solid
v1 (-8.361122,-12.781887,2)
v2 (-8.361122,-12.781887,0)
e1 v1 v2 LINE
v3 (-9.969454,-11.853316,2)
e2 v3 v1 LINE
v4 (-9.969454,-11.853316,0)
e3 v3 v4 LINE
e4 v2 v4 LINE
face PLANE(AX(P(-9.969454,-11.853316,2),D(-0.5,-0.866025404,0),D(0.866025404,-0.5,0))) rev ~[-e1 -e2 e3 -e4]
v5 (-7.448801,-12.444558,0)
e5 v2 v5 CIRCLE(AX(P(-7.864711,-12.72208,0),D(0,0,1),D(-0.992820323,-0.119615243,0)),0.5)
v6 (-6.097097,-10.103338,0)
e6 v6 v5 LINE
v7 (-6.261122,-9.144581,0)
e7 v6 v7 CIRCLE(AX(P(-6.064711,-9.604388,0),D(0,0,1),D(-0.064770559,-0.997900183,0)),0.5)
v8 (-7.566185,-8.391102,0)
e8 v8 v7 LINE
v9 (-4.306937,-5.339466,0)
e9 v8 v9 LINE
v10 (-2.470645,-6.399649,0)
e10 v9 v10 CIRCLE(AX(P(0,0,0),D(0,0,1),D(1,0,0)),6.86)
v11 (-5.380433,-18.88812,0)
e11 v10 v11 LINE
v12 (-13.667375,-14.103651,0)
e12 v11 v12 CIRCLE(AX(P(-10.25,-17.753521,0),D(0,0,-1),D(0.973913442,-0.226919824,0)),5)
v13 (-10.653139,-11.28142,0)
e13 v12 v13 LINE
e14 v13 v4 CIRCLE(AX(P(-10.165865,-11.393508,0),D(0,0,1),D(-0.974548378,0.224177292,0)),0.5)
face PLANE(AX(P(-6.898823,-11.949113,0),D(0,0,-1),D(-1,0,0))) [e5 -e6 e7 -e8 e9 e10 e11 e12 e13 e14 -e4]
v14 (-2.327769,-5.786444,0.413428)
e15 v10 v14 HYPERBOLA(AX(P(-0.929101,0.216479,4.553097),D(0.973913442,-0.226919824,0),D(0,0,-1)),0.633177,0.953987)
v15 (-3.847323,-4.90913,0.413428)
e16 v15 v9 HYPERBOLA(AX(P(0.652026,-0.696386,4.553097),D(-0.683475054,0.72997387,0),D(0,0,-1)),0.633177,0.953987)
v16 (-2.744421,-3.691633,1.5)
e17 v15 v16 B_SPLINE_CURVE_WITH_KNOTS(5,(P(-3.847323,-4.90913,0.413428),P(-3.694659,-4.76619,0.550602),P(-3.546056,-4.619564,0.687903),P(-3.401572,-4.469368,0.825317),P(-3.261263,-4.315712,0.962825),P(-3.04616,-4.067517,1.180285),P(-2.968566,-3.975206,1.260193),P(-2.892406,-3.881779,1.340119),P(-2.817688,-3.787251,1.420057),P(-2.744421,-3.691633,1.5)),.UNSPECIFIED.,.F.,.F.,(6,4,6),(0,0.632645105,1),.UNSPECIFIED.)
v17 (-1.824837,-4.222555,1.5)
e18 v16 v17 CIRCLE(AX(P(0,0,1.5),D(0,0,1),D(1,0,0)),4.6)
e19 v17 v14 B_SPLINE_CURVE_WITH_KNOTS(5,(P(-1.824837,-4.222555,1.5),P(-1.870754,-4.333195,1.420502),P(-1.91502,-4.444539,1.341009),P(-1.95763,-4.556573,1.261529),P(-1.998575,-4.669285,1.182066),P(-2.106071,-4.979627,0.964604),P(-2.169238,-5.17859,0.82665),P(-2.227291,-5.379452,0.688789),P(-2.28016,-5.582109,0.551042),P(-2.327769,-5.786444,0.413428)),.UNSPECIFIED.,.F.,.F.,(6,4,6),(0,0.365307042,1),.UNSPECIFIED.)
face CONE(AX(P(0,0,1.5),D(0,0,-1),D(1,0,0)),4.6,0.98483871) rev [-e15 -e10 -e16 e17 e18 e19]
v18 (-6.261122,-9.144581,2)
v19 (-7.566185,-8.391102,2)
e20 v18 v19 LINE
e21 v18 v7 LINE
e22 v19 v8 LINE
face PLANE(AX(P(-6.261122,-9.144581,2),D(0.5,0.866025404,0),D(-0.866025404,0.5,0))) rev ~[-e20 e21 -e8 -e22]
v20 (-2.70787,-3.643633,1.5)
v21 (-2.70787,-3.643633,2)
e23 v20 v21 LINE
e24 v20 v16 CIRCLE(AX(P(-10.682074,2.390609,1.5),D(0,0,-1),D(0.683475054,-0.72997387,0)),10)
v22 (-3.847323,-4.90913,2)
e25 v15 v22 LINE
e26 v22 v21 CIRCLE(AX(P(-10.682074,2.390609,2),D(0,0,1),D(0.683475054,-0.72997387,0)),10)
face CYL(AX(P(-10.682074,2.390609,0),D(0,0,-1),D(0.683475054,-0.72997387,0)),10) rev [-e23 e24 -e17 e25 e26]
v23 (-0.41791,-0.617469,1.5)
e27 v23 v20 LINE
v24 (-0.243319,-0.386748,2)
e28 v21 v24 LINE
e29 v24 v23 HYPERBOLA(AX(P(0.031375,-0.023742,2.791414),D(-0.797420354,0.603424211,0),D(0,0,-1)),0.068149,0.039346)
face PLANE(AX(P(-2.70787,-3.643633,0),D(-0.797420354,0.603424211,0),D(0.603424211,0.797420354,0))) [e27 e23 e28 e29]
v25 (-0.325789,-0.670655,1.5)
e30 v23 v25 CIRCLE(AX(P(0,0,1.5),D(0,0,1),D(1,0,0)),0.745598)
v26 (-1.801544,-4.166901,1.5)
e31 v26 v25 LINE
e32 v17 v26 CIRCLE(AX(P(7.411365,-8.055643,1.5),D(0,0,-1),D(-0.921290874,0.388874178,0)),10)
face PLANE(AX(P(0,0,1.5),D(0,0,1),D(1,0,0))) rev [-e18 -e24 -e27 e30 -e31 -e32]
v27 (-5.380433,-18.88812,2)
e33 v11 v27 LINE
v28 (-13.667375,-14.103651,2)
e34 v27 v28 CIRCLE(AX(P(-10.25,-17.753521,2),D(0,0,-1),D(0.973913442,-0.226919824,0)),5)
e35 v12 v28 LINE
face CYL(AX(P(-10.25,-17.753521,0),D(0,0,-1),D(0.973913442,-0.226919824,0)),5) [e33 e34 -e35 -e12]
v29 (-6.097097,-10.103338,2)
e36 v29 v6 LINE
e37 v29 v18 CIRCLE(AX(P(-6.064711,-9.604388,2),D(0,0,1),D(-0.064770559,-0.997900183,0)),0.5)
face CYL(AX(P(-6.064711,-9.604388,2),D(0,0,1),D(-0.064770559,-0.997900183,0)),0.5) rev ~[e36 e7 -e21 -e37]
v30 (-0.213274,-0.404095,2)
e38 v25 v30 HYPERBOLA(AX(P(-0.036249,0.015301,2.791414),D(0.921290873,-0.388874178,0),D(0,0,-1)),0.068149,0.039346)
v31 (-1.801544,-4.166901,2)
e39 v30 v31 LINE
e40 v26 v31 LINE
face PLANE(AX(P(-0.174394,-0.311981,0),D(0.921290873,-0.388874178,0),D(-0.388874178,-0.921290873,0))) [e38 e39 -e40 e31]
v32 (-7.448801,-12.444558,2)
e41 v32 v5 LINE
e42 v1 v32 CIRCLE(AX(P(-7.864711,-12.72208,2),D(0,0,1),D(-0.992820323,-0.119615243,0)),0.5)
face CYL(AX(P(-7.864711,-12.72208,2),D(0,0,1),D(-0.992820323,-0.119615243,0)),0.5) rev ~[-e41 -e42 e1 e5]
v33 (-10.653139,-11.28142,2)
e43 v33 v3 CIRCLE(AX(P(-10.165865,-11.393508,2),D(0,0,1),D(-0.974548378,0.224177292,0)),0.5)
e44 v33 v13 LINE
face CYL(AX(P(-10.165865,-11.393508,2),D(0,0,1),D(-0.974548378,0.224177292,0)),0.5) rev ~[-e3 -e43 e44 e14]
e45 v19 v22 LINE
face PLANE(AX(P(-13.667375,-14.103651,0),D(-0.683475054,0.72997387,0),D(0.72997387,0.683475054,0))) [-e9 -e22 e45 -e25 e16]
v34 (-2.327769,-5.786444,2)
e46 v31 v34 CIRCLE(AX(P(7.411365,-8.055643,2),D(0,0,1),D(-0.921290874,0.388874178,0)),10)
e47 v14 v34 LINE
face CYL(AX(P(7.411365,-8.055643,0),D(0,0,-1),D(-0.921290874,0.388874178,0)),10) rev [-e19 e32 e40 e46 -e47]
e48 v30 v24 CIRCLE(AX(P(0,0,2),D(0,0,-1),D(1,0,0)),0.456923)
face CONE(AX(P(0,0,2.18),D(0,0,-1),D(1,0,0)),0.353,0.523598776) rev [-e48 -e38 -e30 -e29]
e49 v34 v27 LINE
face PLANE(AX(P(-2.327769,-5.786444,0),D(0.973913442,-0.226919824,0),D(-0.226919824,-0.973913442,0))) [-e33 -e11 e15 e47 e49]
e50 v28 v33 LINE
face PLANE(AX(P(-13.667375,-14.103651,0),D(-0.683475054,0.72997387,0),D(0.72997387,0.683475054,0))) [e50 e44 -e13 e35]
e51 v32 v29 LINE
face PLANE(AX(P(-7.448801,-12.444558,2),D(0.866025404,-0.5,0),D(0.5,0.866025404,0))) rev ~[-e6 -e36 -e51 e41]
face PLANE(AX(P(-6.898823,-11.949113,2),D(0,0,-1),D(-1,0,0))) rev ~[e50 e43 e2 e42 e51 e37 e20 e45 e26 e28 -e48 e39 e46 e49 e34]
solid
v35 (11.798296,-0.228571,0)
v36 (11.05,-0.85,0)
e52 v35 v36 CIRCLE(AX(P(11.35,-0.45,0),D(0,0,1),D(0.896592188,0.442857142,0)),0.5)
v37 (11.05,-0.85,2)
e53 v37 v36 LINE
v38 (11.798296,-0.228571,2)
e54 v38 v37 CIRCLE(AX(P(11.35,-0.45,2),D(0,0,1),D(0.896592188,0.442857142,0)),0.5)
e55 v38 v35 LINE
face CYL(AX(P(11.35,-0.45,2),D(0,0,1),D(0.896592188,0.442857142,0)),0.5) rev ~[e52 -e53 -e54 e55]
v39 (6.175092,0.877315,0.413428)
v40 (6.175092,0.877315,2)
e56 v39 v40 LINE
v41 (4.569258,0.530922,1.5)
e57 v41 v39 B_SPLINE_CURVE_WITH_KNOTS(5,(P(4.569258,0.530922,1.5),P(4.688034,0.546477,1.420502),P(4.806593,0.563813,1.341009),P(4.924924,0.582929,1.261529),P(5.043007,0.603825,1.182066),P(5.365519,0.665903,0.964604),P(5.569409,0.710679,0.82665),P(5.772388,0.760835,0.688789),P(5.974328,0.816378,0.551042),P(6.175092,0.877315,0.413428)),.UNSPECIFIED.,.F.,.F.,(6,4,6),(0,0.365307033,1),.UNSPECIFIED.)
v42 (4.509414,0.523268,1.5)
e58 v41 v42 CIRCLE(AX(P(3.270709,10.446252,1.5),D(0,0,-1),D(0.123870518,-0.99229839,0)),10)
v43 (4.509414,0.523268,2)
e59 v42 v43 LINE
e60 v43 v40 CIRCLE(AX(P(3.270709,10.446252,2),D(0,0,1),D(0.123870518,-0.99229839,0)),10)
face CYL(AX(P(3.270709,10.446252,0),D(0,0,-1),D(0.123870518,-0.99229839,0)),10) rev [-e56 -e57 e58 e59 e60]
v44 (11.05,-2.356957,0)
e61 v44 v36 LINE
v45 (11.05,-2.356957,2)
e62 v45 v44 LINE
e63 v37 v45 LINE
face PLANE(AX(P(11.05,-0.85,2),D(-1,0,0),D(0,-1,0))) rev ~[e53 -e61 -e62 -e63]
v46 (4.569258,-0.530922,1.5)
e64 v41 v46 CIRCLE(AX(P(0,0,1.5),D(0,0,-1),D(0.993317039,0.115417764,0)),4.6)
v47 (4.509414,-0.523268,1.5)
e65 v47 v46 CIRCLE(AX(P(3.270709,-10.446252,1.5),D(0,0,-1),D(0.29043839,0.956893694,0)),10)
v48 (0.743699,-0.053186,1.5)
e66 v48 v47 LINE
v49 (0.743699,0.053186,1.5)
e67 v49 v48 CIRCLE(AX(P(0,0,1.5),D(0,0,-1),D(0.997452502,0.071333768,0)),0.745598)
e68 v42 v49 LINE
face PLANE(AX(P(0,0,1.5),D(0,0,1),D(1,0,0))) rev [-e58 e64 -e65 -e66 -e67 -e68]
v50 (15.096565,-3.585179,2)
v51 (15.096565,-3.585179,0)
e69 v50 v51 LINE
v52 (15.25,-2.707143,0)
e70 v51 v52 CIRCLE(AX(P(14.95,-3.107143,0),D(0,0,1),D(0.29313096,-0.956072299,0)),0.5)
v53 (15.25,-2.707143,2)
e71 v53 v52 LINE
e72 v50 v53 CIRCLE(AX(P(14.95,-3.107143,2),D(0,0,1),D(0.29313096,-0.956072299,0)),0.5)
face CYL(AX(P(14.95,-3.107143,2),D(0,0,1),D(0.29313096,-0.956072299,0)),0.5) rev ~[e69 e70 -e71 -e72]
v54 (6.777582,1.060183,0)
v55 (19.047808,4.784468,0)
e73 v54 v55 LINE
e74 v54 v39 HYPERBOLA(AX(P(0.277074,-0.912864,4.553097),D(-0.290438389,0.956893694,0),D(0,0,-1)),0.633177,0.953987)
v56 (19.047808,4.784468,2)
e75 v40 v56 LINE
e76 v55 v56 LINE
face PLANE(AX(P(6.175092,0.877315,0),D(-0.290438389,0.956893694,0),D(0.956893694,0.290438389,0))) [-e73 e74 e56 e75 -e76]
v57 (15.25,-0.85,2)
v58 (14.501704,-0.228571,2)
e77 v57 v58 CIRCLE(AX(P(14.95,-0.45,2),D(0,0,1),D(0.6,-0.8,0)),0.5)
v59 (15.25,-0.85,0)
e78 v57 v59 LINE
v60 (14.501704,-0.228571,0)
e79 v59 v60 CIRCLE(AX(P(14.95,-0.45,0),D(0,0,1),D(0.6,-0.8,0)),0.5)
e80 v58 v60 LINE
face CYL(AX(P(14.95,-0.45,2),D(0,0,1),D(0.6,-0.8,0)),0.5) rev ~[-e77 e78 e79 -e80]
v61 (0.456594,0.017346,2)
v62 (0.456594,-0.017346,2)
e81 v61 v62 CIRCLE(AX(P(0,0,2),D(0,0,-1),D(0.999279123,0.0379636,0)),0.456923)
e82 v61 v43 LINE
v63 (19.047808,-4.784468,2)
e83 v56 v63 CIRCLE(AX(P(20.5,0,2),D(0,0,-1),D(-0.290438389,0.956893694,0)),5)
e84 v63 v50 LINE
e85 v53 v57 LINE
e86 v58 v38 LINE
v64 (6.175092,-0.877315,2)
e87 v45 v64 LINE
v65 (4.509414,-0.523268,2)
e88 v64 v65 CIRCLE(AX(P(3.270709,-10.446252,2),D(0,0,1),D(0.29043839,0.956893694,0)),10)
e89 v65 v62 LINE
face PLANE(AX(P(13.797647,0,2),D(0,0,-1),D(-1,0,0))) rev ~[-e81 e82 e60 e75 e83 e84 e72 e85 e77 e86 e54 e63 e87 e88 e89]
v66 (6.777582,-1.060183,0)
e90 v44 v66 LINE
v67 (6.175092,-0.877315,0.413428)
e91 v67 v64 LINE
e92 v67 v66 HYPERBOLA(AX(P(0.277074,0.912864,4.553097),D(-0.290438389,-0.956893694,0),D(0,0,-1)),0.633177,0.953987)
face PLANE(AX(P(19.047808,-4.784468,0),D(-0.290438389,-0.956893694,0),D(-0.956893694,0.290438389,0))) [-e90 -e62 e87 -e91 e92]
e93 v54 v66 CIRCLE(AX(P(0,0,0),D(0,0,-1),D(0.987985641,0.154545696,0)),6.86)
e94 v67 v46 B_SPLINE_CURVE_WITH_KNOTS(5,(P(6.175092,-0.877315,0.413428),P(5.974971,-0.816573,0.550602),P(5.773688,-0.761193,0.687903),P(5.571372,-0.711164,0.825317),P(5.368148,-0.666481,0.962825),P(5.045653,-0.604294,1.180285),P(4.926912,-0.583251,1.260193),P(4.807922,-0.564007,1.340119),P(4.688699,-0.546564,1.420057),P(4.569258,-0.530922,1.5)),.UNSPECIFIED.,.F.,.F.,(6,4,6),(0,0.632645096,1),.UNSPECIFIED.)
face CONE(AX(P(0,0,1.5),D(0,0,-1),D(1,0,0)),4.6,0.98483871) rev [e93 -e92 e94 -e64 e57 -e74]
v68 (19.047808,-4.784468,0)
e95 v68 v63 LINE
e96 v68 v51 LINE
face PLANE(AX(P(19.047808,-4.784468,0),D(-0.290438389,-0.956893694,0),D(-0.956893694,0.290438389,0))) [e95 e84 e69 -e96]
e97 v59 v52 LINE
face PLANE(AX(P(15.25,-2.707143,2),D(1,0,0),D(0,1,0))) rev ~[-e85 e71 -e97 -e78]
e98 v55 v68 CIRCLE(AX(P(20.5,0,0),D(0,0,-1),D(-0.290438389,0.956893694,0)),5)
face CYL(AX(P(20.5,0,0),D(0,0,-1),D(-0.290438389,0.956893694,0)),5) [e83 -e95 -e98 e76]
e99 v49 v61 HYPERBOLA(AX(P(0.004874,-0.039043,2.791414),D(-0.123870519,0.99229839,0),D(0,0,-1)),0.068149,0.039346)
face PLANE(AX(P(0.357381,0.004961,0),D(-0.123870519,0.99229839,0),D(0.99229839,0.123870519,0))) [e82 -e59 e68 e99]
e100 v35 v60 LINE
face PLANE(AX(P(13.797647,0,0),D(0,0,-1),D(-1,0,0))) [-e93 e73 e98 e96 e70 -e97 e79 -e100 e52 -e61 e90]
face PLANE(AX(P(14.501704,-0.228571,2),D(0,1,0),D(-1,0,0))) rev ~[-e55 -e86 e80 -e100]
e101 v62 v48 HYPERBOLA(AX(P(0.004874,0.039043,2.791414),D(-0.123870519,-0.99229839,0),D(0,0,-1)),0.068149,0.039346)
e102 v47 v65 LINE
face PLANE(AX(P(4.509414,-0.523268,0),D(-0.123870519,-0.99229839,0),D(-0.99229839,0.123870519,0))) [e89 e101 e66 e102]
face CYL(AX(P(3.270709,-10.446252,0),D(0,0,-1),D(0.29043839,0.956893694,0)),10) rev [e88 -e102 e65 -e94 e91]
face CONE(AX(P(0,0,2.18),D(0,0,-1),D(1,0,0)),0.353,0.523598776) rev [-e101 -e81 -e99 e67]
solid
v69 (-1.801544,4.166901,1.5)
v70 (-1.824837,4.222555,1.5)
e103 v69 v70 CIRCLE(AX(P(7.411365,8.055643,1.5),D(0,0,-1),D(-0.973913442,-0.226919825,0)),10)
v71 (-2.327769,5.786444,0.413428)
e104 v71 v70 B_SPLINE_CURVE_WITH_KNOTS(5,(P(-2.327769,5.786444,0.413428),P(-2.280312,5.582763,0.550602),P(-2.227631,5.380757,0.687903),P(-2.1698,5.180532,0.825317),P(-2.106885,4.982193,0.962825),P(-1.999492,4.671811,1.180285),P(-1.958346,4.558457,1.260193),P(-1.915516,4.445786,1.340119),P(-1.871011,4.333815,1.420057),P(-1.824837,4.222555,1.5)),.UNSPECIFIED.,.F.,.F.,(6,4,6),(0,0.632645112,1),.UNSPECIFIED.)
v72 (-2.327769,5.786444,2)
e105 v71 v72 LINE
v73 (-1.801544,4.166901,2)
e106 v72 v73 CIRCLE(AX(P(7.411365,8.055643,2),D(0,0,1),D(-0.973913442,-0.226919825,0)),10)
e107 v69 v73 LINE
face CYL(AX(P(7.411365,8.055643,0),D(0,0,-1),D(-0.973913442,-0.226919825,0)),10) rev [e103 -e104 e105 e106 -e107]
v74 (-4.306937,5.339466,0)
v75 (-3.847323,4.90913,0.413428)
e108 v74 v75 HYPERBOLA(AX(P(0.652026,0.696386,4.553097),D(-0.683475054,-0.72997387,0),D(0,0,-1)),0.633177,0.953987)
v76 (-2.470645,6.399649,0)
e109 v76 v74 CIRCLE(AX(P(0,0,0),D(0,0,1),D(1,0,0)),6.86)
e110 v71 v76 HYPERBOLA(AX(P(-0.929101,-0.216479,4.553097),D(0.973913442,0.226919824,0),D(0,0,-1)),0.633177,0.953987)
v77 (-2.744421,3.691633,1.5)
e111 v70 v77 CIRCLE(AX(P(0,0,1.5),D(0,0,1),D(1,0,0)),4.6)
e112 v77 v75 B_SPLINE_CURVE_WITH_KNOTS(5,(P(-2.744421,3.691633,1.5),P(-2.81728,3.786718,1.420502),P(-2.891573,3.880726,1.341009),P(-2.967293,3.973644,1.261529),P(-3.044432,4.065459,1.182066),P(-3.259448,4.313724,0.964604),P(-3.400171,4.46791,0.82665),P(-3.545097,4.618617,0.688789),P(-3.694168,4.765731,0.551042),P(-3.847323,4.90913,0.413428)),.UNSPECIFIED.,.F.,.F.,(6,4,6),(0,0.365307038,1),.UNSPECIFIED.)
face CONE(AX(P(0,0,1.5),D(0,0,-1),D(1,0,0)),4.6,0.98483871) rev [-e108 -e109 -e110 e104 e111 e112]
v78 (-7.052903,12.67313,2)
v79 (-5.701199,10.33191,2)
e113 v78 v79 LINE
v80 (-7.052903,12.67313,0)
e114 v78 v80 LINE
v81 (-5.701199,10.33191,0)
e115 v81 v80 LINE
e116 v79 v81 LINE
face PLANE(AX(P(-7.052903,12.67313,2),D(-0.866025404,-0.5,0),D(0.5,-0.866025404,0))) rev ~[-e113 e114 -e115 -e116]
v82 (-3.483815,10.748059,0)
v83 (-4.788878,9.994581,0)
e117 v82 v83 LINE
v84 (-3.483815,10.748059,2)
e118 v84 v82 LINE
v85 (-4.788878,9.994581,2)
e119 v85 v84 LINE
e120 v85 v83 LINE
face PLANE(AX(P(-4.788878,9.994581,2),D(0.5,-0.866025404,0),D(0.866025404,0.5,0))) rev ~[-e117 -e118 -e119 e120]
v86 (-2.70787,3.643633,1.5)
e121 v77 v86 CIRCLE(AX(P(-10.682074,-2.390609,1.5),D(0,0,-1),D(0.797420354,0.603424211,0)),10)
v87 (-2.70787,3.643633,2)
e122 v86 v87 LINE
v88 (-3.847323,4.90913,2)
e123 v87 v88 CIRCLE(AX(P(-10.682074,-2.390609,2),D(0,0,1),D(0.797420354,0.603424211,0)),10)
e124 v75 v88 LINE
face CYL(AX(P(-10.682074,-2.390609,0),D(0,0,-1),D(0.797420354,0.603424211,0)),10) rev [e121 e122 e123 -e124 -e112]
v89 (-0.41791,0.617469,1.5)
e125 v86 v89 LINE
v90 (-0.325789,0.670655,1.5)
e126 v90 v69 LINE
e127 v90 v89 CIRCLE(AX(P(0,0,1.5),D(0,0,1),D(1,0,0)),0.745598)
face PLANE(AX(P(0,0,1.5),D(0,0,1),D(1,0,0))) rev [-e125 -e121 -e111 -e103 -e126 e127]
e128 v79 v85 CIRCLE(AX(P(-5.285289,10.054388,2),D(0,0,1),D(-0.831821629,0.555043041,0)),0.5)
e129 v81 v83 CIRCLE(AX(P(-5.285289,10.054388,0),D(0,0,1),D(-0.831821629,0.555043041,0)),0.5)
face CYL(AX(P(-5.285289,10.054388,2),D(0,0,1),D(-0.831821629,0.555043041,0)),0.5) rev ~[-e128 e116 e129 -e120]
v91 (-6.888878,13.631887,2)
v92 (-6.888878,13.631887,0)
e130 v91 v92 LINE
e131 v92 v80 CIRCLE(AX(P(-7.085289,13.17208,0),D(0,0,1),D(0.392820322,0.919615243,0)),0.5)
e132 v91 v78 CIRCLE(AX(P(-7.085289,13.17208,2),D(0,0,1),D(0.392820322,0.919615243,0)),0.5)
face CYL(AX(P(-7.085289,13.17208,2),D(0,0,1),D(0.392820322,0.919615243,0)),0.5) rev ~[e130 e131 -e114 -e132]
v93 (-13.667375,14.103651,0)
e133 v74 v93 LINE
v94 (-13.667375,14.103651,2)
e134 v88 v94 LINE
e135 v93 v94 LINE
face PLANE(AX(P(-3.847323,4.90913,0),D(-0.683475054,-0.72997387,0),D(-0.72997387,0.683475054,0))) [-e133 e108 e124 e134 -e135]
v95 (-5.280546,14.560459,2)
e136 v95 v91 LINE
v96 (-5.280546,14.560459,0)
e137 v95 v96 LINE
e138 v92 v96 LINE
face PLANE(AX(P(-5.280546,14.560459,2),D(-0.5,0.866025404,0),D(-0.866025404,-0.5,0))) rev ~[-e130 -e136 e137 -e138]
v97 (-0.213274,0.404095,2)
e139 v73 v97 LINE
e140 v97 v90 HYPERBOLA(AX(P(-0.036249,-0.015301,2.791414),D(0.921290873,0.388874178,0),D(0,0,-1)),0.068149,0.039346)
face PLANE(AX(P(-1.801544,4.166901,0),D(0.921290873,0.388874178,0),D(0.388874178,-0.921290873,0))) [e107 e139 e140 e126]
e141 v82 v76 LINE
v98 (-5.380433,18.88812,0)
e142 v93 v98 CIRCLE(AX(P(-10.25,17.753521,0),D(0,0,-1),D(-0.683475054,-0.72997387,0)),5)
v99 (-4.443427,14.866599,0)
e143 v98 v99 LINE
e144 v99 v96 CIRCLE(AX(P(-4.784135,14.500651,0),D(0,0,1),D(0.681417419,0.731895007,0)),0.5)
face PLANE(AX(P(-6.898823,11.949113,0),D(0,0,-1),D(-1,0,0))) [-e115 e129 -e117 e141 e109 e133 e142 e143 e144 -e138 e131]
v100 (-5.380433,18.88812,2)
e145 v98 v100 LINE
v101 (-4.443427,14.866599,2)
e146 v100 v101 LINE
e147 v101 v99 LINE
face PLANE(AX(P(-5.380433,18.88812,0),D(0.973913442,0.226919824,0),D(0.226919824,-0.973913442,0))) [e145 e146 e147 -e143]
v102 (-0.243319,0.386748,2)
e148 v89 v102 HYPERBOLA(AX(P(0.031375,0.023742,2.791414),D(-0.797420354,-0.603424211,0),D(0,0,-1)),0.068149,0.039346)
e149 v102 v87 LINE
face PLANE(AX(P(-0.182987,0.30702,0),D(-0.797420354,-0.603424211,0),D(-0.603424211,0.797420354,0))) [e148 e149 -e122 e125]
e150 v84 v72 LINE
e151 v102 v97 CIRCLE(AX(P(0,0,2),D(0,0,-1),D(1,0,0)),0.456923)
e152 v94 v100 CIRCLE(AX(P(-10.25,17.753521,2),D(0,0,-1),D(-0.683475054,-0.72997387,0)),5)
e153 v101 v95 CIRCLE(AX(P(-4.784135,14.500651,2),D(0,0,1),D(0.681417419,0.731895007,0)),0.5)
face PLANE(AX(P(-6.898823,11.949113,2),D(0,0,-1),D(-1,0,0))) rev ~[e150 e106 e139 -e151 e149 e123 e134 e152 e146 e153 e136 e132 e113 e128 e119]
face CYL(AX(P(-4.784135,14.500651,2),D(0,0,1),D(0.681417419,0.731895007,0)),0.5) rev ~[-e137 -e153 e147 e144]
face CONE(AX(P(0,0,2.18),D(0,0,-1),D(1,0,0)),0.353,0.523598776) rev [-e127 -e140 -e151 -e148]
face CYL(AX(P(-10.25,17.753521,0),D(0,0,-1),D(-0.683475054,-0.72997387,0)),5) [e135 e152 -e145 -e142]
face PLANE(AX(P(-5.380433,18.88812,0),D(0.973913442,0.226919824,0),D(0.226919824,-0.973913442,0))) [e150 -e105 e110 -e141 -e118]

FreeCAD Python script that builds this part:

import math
import FreeCAD as App
import Part
import Sketcher

V = App.Vector
Q = App.Units.Quantity

doc = App.newDocument("Part")
body = doc.addObject("PartDesign::Body", "Body")

sketch1 = body.newObject("Sketcher::SketchObject", "Sketch")
sketch1.AttachmentSupport = (doc.getObject("XY_Plane"), [""])
sketch1.MapMode = "FlatFace"
sketch1.addGeometry(Part.LineSegment(V(4.509414, 0.523268, 0), V(0.357381, 0.004961, 0)), False)
sketch1.addGeometry(Part.ArcOfCircle(Part.Circle(V(0.358, 0, 0), V(0, 0, 1), 0.005), math.radians(97.115539), math.radians(262.884461)), False)
sketch1.addGeometry(Part.LineSegment(V(0.357381, -0.004961, 0), V(4.509414, -0.523268, 0)), False)
sketch1.addGeometry(Part.ArcOfCircle(Part.Circle(V(3.270709, -10.446252, 0), V(0, 0, 1), 10), math.radians(73.115796), math.radians(82.884466)), False)
sketch1.addGeometry(Part.LineSegment(V(6.175092, -0.877315, 0), V(19.047808, -4.784468, 0)), False)
sketch1.addGeometry(Part.ArcOfCircle(Part.Circle(V(20.5, 0, 0), V(0, 0, 1), 5), math.radians(-106.884204), math.radians(106.884204)), False)
sketch1.addGeometry(Part.LineSegment(V(19.047808, 4.784468, 0), V(6.175092, 0.877315, 0)), False)
sketch1.addGeometry(Part.ArcOfCircle(Part.Circle(V(3.270709, 10.446252, 0), V(0, 0, 1), 10), math.radians(-82.884466), math.radians(-73.115796)), False)
sketch1.addConstraint(Sketcher.Constraint("Tangent", 0, 2, 1, 1))
sketch1.addConstraint(Sketcher.Constraint("Tangent", 1, 2, 2, 1))
sketch1.addConstraint(Sketcher.Constraint("Tangent", 2, 2, 3, 2))
sketch1.addConstraint(Sketcher.Constraint("Tangent", 3, 1, 4, 1))
sketch1.addConstraint(Sketcher.Constraint("Tangent", 4, 2, 5, 1))
sketch1.addConstraint(Sketcher.Constraint("Tangent", 5, 2, 6, 1))
sketch1.addConstraint(Sketcher.Constraint("Tangent", 6, 2, 7, 2))
sketch1.addConstraint(Sketcher.Constraint("Tangent", 7, 1, 0, 1))
sketch1.addConstraint(Sketcher.Constraint("Equal", 3, 7))
sketch1.addConstraint(Sketcher.Constraint("Symmetric", 3, 3, 7, 3, -1))
sketch1.addConstraint(Sketcher.Constraint("PointOnObject", 1, 3, -1))
sketch1.addConstraint(Sketcher.Constraint("PointOnObject", 5, 3, -1))
sketch1.addConstraint(Sketcher.Constraint("Radius", 3, Q("10 mm")))
sketch1.addConstraint(Sketcher.Constraint("Radius", 5, Q("5 mm")))
sketch1.addConstraint(Sketcher.Constraint("Radius", 1, Q("0.005 mm")))
sketch1.addConstraint(Sketcher.Constraint("DistanceX", -1, 1, 5, 3, Q("20.5 mm")))
sketch1.addConstraint(Sketcher.Constraint("DistanceX", -1, 1, 1, 3, Q("0.358 mm")))
sketch1.addConstraint(Sketcher.Constraint("DistanceY", 4, 2, 2, 2, Q("4.261201 mm")))
sketch1.addConstraint(Sketcher.Constraint("DistanceX", 3, 3, 4, 2, Q("15.777099 mm")))
pad1 = body.newObject("PartDesign::Pad", "Pad")
pad1.Profile = sketch1
pad1.Length = 2
body2 = doc.addObject("PartDesign::Body", "Body001")

sketch2 = body2.newObject("Sketcher::SketchObject", "Sketch001")
sketch2.AttachmentSupport = (doc.getObject("XY_Plane001"), [""])
sketch2.MapMode = "FlatFace"
sketch2.addGeometry(Part.LineSegment(V(-5.380433, -18.88812, 0), V(-2.327769, -5.786444, 0)), False)
sketch2.addGeometry(Part.ArcOfCircle(Part.Circle(V(7.411365, -8.055643, 0), V(0, 0, 1), 10), math.radians(157.115534), math.radians(166.884204)), False)
sketch2.addGeometry(Part.LineSegment(V(-1.801544, -4.166901, 0), V(-0.174394, -0.311981, 0)), False)
sketch2.addGeometry(Part.ArcOfCircle(Part.Circle(V(-0.179, -0.310037, 0), V(0, 0, 1), 0.005), math.radians(-22.884453), math.radians(142.884452)), False)
sketch2.addGeometry(Part.LineSegment(V(-0.182987, -0.30702, 0), V(-2.70787, -3.643633, 0)), False)
sketch2.addGeometry(Part.ArcOfCircle(Part.Circle(V(-10.682074, 2.390609, 0), V(0, 0, 1), 10), math.radians(-46.884204), math.radians(-37.115534)), False)
sketch2.addGeometry(Part.LineSegment(V(-3.847323, -4.90913, 0), V(-13.667375, -14.103651, 0)), False)
sketch2.addGeometry(Part.ArcOfCircle(Part.Circle(V(-10.25, -17.753521, 0), V(0, 0, 1), 5), math.radians(133.115796), math.radians(346.884204)), False)
sketch2.addConstraint(Sketcher.Constraint("Tangent", 0, 2, 1, 2))
sketch2.addConstraint(Sketcher.Constraint("Tangent", 1, 1, 2, 1))
sketch2.addConstraint(Sketcher.Constraint("Tangent", 2, 2, 3, 1))
sketch2.addConstraint(Sketcher.Constraint("Tangent", 3, 2, 4, 1))
sketch2.addConstraint(Sketcher.Constraint("Tangent", 4, 2, 5, 2))
sketch2.addConstraint(Sketcher.Constraint("Tangent", 5, 1, 6, 1))
sketch2.addConstraint(Sketcher.Constraint("Tangent", 6, 2, 7, 1))
sketch2.addConstraint(Sketcher.Constraint("Tangent", 7, 2, 0, 1))
sketch2.addConstraint(Sketcher.Constraint("Equal", 1, 5))
sketch2.addConstraint(Sketcher.Constraint("Equal", 2, 4))
sketch2.addConstraint(Sketcher.Constraint("Equal", 0, 6))
sketch2.addConstraint(Sketcher.Constraint("Radius", 1, Q("10 mm")))
sketch2.addConstraint(Sketcher.Constraint("Radius", 7, Q("5 mm")))
sketch2.addConstraint(Sketcher.Constraint("Radius", 3, Q("0.005 mm")))
sketch2.addConstraint(Sketcher.Constraint("DistanceX", 7, 3, -1, 1, Q("10.25 mm")))
sketch2.addConstraint(Sketcher.Constraint("DistanceX", 3, 3, -1, 1, Q("0.179 mm")))
sketch2.addConstraint(Sketcher.Constraint("DistanceY", 1, 1, -1, 1, Q("4.166901 mm")))
sketch2.addConstraint(Sketcher.Constraint("DistanceY", 1, 3, 0, 2, Q("2.269198 mm")))
sketch2.addConstraint(Sketcher.Constraint("DistanceX", 4, 2, 0, 2, Q("0.380101 mm")))
sketch2.addConstraint(Sketcher.Constraint("Distance", 2, Q("4.184259 mm")))
pad2 = body2.newObject("PartDesign::Pad", "Pad001")
pad2.Profile = sketch2
pad2.Length = 2
body3 = doc.addObject("PartDesign::Body", "Body002")

sketch3 = body3.newObject("Sketcher::SketchObject", "Sketch002")
sketch3.AttachmentSupport = (doc.getObject("XY_Plane002"), [""])
sketch3.MapMode = "FlatFace"
sketch3.addGeometry(Part.LineSegment(V(-13.667375, 14.103651, 0), V(-3.847323, 4.90913, 0)), False)
sketch3.addGeometry(Part.ArcOfCircle(Part.Circle(V(-10.682074, -2.390609, 0), V(0, 0, 1), 10), math.radians(37.115534), math.radians(46.884204)), False)
sketch3.addGeometry(Part.LineSegment(V(-2.70787, 3.643633, 0), V(-0.182987, 0.30702, 0)), False)
sketch3.addGeometry(Part.ArcOfCircle(Part.Circle(V(-0.179, 0.310037, 0), V(0, 0, 1), 0.005), math.radians(-142.884452), math.radians(22.884453)), False)
sketch3.addGeometry(Part.LineSegment(V(-0.174394, 0.311981, 0), V(-1.801544, 4.166901, 0)), False)
sketch3.addGeometry(Part.ArcOfCircle(Part.Circle(V(7.411365, 8.055643, 0), V(0, 0, 1), 10), math.radians(-166.884204), math.radians(-157.115534)), False)
sketch3.addGeometry(Part.LineSegment(V(-2.327769, 5.786444, 0), V(-5.380433, 18.88812, 0)), False)
sketch3.addGeometry(Part.ArcOfCircle(Part.Circle(V(-10.25, 17.753521, 0), V(0, 0, 1), 5), math.radians(13.115796), math.radians(226.884204)), False)
sketch3.addConstraint(Sketcher.Constraint("Tangent", 0, 2, 1, 2))
sketch3.addConstraint(Sketcher.Constraint("Tangent", 1, 1, 2, 1))
sketch3.addConstraint(Sketcher.Constraint("Tangent", 2, 2, 3, 1))
sketch3.addConstraint(Sketcher.Constraint("Tangent", 3, 2, 4, 1))
sketch3.addConstraint(Sketcher.Constraint("Tangent", 4, 2, 5, 2))
sketch3.addConstraint(Sketcher.Constraint("Tangent", 5, 1, 6, 1))
sketch3.addConstraint(Sketcher.Constraint("Tangent", 6, 2, 7, 1))
sketch3.addConstraint(Sketcher.Constraint("Tangent", 7, 2, 0, 1))
sketch3.addConstraint(Sketcher.Constraint("Equal", 1, 5))
sketch3.addConstraint(Sketcher.Constraint("Equal", 2, 4))
sketch3.addConstraint(Sketcher.Constraint("Equal", 0, 6))
sketch3.addConstraint(Sketcher.Constraint("Radius", 1, Q("10 mm")))
sketch3.addConstraint(Sketcher.Constraint("Radius", 7, Q("5 mm")))
sketch3.addConstraint(Sketcher.Constraint("Radius", 3, Q("0.005 mm")))
sketch3.addConstraint(Sketcher.Constraint("DistanceX", 7, 3, -1, 1, Q("10.25 mm")))
sketch3.addConstraint(Sketcher.Constraint("DistanceX", 3, 3, -1, 1, Q("0.179 mm")))
sketch3.addConstraint(Sketcher.Constraint("DistanceY", -1, 1, 4, 2, Q("4.166901 mm")))
sketch3.addConstraint(Sketcher.Constraint("DistanceX", 1, 1, 5, 1, Q("0.380101 mm")))
sketch3.addConstraint(Sketcher.Constraint("DistanceY", 7, 3, 6, 2, Q("1.134599 mm")))
sketch3.addConstraint(Sketcher.Constraint("Distance", 2, Q("4.184259 mm")))
pad3 = body3.newObject("PartDesign::Pad", "Pad002")
pad3.Profile = sketch3
pad3.Length = 2
body4 = doc.addObject("PartDesign::Body", "Body003")
body4.AllowCompound = True

sketch4 = body4.newObject("Sketcher::SketchObject", "Sketch003")
sketch4.AttachmentSupport = (doc.getObject("XY_Plane003"), [""])
sketch4.MapMode = "FlatFace"
sketch4.AttachmentOffset = App.Placement(V(0, 0, 2), App.Rotation())
sketch4.addGeometry(Part.ArcOfCircle(Part.Circle(V(11.35, -0.45, 0), V(0, 0, 1), 0.5), math.radians(26.286321), math.radians(233.130102)), False)
sketch4.addGeometry(Part.LineSegment(V(11.05, -0.85, 0), V(11.05, -2.356957, 0)), False)
sketch4.addGeometry(Part.LineSegment(V(11.05, -2.356957, 0), V(15.096565, -3.585179, 0)), False)
sketch4.addGeometry(Part.ArcOfCircle(Part.Circle(V(14.95, -3.107143, 0), V(0, 0, 1), 0.5), math.radians(-72.954505), math.radians(53.130102)), False)
sketch4.addGeometry(Part.LineSegment(V(15.25, -2.707143, 0), V(15.25, -0.85, 0)), False)
sketch4.addGeometry(Part.ArcOfCircle(Part.Circle(V(14.95, -0.45, 0), V(0, 0, 1), 0.5), math.radians(-53.130102), math.radians(153.713679)), False)
sketch4.addGeometry(Part.LineSegment(V(14.501704, -0.228571, 0), V(11.798296, -0.228571, 0)), False)
sketch4.addGeometry(Part.ArcOfCircle(Part.Circle(V(-7.085289, 13.17208, 0), V(0, 0, 1), 0.5), math.radians(66.869898), math.radians(273.713679)), False)
sketch4.addGeometry(Part.LineSegment(V(-7.052903, 12.67313, 0), V(-5.701199, 10.33191, 0)), False)
sketch4.addGeometry(Part.ArcOfCircle(Part.Circle(V(-5.285289, 10.054388, 0), V(0, 0, 1), 0.5), math.radians(146.286321), math.radians(353.130102)), False)
sketch4.addGeometry(Part.LineSegment(V(-4.788878, 9.994581, 0), V(-3.483815, 10.748059, 0)), False)
sketch4.addGeometry(Part.LineSegment(V(-3.483815, 10.748059, 0), V(-4.443427, 14.866599, 0)), False)
sketch4.addGeometry(Part.ArcOfCircle(Part.Circle(V(-4.784135, 14.500651, 0), V(0, 0, 1), 0.5), math.radians(47.045495), math.radians(173.130102)), False)
sketch4.addGeometry(Part.LineSegment(V(-5.280546, 14.560459, 0), V(-6.888878, 13.631887, 0)), False)
sketch4.addGeometry(Part.ArcOfCircle(Part.Circle(V(-6.064711, -9.604388, 0), V(0, 0, 1), 0.5), math.radians(-93.713679), math.radians(113.130102)), False)
sketch4.addGeometry(Part.LineSegment(V(-6.261122, -9.144581, 0), V(-7.566185, -8.391102, 0)), False)
sketch4.addGeometry(Part.LineSegment(V(-7.566185, -8.391102, 0), V(-10.653139, -11.28142, 0)), False)
sketch4.addGeometry(Part.ArcOfCircle(Part.Circle(V(-10.165865, -11.393508, 0), V(0, 0, 1), 0.5), math.radians(167.045495), math.radians(293.130102)), False)
sketch4.addGeometry(Part.LineSegment(V(-9.969454, -11.853316, 0), V(-8.361122, -12.781887, 0)), False)
sketch4.addGeometry(Part.ArcOfCircle(Part.Circle(V(-7.864711, -12.72208, 0), V(0, 0, 1), 0.5), math.radians(-173.130102), math.radians(33.713679)), False)
sketch4.addGeometry(Part.LineSegment(V(-7.448801, -12.444558, 0), V(-6.097097, -10.103338, 0)), False)
sketch4.addConstraint(Sketcher.Constraint("Coincident", 0, 2, 1, 1))
sketch4.addConstraint(Sketcher.Constraint("Coincident", 1, 2, 2, 1))
sketch4.addConstraint(Sketcher.Constraint("Coincident", 2, 2, 3, 1))
sketch4.addConstraint(Sketcher.Constraint("Coincident", 3, 2, 4, 1))
sketch4.addConstraint(Sketcher.Constraint("Coincident", 4, 2, 5, 1))
sketch4.addConstraint(Sketcher.Constraint("Coincident", 5, 2, 6, 1))
sketch4.addConstraint(Sketcher.Constraint("Coincident", 6, 2, 0, 1))
sketch4.addConstraint(Sketcher.Constraint("Coincident", 7, 2, 8, 1))
sketch4.addConstraint(Sketcher.Constraint("Coincident", 8, 2, 9, 1))
sketch4.addConstraint(Sketcher.Constraint("Coincident", 9, 2, 10, 1))
sketch4.addConstraint(Sketcher.Constraint("Coincident", 10, 2, 11, 1))
sketch4.addConstraint(Sketcher.Constraint("Coincident", 11, 2, 12, 1))
sketch4.addConstraint(Sketcher.Constraint("Coincident", 12, 2, 13, 1))
sketch4.addConstraint(Sketcher.Constraint("Coincident", 13, 2, 7, 1))
sketch4.addConstraint(Sketcher.Constraint("Coincident", 14, 2, 15, 1))
sketch4.addConstraint(Sketcher.Constraint("Coincident", 15, 2, 16, 1))
sketch4.addConstraint(Sketcher.Constraint("Coincident", 16, 2, 17, 1))
sketch4.addConstraint(Sketcher.Constraint("Coincident", 17, 2, 18, 1))
sketch4.addConstraint(Sketcher.Constraint("Coincident", 18, 2, 19, 1))
sketch4.addConstraint(Sketcher.Constraint("Coincident", 19, 2, 20, 1))
sketch4.addConstraint(Sketcher.Constraint("Coincident", 20, 2, 14, 1))
sketch4.addConstraint(Sketcher.Constraint("Vertical", 1))
sketch4.addConstraint(Sketcher.Constraint("Vertical", 4))
sketch4.addConstraint(Sketcher.Constraint("Horizontal", 6))
sketch4.addConstraint(Sketcher.Constraint("Equal", 0, 3))
sketch4.addConstraint(Sketcher.Constraint("Equal", 3, 5))
sketch4.addConstraint(Sketcher.Constraint("Equal", 5, 7))
sketch4.addConstraint(Sketcher.Constraint("Equal", 7, 9))
sketch4.addConstraint(Sketcher.Constraint("Equal", 9, 12))
sketch4.addConstraint(Sketcher.Constraint("Equal", 12, 14))
sketch4.addConstraint(Sketcher.Constraint("Equal", 14, 17))
sketch4.addConstraint(Sketcher.Constraint("Equal", 17, 19))
sketch4.addConstraint(Sketcher.Constraint("Perpendicular", 8, 10))
sketch4.addConstraint(Sketcher.Constraint("Parallel", 10, 13))
sketch4.addConstraint(Sketcher.Constraint("Parallel", 15, 18))
sketch4.addConstraint(Sketcher.Constraint("Perpendicular", 18, 20))
sketch4.addConstraint(Sketcher.Constraint("Horizontal", 0, 3, 5, 3))
sketch4.addConstraint(Sketcher.Constraint("Horizontal", 0, 2, 4, 2))
sketch4.addConstraint(Sketcher.Constraint("Vertical", 3, 3, 5, 3))
sketch4.addConstraint(Sketcher.Constraint("Equal", 2, 11))
sketch4.addConstraint(Sketcher.Constraint("Equal", 10, 15))
sketch4.addConstraint(Sketcher.Constraint("Equal", 11, 16))
sketch4.addConstraint(Sketcher.Constraint("Equal", 13, 18))
sketch4.addConstraint(Sketcher.Constraint("Equal", 8, 20))
sketch4.addConstraint(Sketcher.Constraint("Radius", 0, Q("0.5 mm")))
sketch4.addConstraint(Sketcher.Constraint("Angle", 8, Q("-60 deg")))
sketch4.addConstraint(Sketcher.Constraint("Angle", 15, Q("150 deg")))
sketch4.addConstraint(Sketcher.Constraint("DistanceX", 0, 3, 3, 3, Q("3.6 mm")))
sketch4.addConstraint(Sketcher.Constraint("DistanceX", 7, 3, 9, 3, Q("1.8 mm")))
sketch4.addConstraint(Sketcher.Constraint("DistanceX", 19, 3, 14, 3, Q("1.8 mm")))
sketch4.addConstraint(Sketcher.Constraint("DistanceX", 0, 2, 0, 3, Q("0.3 mm")))
sketch4.addConstraint(Sketcher.Constraint("DistanceX", -1, 1, 0, 3, Q("11.35 mm")))
sketch4.addConstraint(Sketcher.Constraint("DistanceY", 0, 3, -1, 1, Q("0.45 mm")))
sketch4.addConstraint(Sketcher.Constraint("DistanceX", 8, 2, -1, 1, Q("5.701199 mm")))
sketch4.addConstraint(Sketcher.Constraint("DistanceY", -1, 1, 11, 2, Q("14.866599 mm")))
sketch4.addConstraint(Sketcher.Constraint("DistanceX", 19, 2, -1, 1, Q("7.448801 mm")))
sketch4.addConstraint(Sketcher.Constraint("DistanceY", 14, 3, 8, 2, Q("19.936298 mm")))
sketch4.addConstraint(Sketcher.Constraint("DistanceY", 9, 2, 7, 3, Q("3.177499 mm")))
sketch4.addConstraint(Sketcher.Constraint("DistanceY", 10, 2, 12, 2, Q("3.8124 mm")))
sketch4.addConstraint(Sketcher.Constraint("DistanceY", 19, 3, 14, 2, Q("3.577499 mm")))
sketch4.addConstraint(Sketcher.Constraint("DistanceY", 18, 2, 14, 3, Q("3.177499 mm")))
sketch4.addConstraint(Sketcher.Constraint("DistanceX", 6, 2, 6, 1, Q("2.703408 mm")))
sketch4.addConstraint(Sketcher.Constraint("DistanceY", 1, 2, 1, 1, Q("1.506957 mm")))
sketch4.addConstraint(Sketcher.Constraint("DistanceY", 4, 1, 4, 2, Q("1.857143 mm")))
sketch4.addConstraint(Sketcher.Constraint("DistanceX", 7, 3, -1, 1, Q("7.085289 mm")))
sketch4.addConstraint(Sketcher.Constraint("DistanceY", -1, 1, 7, 3, Q("13.17208 mm")))
sketch4.addConstraint(Sketcher.Constraint("DistanceY", -1, 1, 9, 3, Q("10.054388 mm")))
sketch4.addConstraint(Sketcher.Constraint("DistanceY", -1, 1, 12, 3, Q("14.500651 mm")))
sketch4.addConstraint(Sketcher.Constraint("DistanceX", 14, 3, -1, 1, Q("6.064711 mm")))
sketch4.addConstraint(Sketcher.Constraint("DistanceY", 17, 3, -1, 1, Q("11.393508 mm")))
sketch4.addConstraint(Sketcher.Constraint("DistanceY", 2, 2, -1, 1, Q("3.585179 mm")))
sketch4.addConstraint(Sketcher.Constraint("DistanceY", -1, 1, 10, 2, Q("10.748059 mm")))
pad4 = body4.newObject("PartDesign::Pad", "Pad003")
pad4.Profile = sketch4
pad4.Length = 35.234087
pad4.Reversed = True
doc.recompute()

body5 = doc.addObject("PartDesign::Body", "Body004")
body5.BaseFeature = body4
boolean = body.newObject("PartDesign::Boolean", "Boolean")
boolean.Type = "Cut"
boolean.addObjects([body5])
doc.recompute()

body6 = doc.addObject("PartDesign::Body", "Body005")
body6.BaseFeature = body4
boolean2 = body2.newObject("PartDesign::Boolean", "Boolean001")
boolean2.Type = "Cut"
boolean2.addObjects([body6])
doc.recompute()

boolean3 = body3.newObject("PartDesign::Boolean", "Boolean002")
boolean3.Type = "Cut"
boolean3.addObjects([body4])
body7 = doc.addObject("PartDesign::Body", "Body006")

sketch5 = body7.newObject("Sketcher::SketchObject", "Sketch004")
sketch5.AttachmentSupport = (doc.getObject("XZ_Plane006"), [""])
sketch5.MapMode = "FlatFace"
sketch5.addGeometry(Part.LineSegment(V(0, 1.5, 0), V(4.6, 1.5, 0)), False)
sketch5.addGeometry(Part.LineSegment(V(4.6, 1.5, 0), V(6.86, 0, 0)), False)
sketch5.addGeometry(Part.LineSegment(V(6.86, 0, 0), V(0, 0, 0)), False)
sketch5.addGeometry(Part.LineSegment(V(0, 0, 0), V(0, 1.5, 0)), False)
sketch5.addConstraint(Sketcher.Constraint("Coincident", 0, 2, 1, 1))
sketch5.addConstraint(Sketcher.Constraint("Coincident", 1, 2, 2, 1))
sketch5.addConstraint(Sketcher.Constraint("Coincident", 2, 2, 3, 1))
sketch5.addConstraint(Sketcher.Constraint("Coincident", 3, 2, 0, 1))
sketch5.addConstraint(Sketcher.Constraint("Horizontal", 0))
sketch5.addConstraint(Sketcher.Constraint("Horizontal", 2))
sketch5.addConstraint(Sketcher.Constraint("Vertical", 3))
sketch5.addConstraint(Sketcher.Constraint("Coincident", 2, 2, -1, 1))
sketch5.addConstraint(Sketcher.Constraint("DistanceX", 0, 1, 0, 2, Q("4.6 mm")))
sketch5.addConstraint(Sketcher.Constraint("DistanceY", 3, 1, 3, 2, Q("1.5 mm")))
sketch5.addConstraint(Sketcher.Constraint("DistanceX", 2, 2, 2, 1, Q("6.86 mm")))
revolution = body7.newObject("PartDesign::Revolution", "Revolution")
revolution.Profile = sketch5
revolution.ReferenceAxis = (sketch5, ["V_Axis"])
revolution.Angle = 360
doc.recompute()

body8 = doc.addObject("PartDesign::Body", "Body007")
body8.BaseFeature = body7
boolean4 = body.newObject("PartDesign::Boolean", "Boolean003")
boolean4.Type = "Cut"
boolean4.addObjects([body8])
doc.recompute()

body9 = doc.addObject("PartDesign::Body", "Body008")
body9.BaseFeature = body7
boolean5 = body2.newObject("PartDesign::Boolean", "Boolean004")
boolean5.Type = "Cut"
boolean5.addObjects([body9])
doc.recompute()

boolean6 = body3.newObject("PartDesign::Boolean", "Boolean005")
boolean6.Type = "Cut"
boolean6.addObjects([body7])
body10 = doc.addObject("PartDesign::Body", "Body009")

sketch6 = body10.newObject("Sketcher::SketchObject", "Sketch005")
sketch6.AttachmentSupport = (doc.getObject("XZ_Plane009"), [""])
sketch6.MapMode = "FlatFace"
sketch6.addGeometry(Part.LineSegment(V(0.353, 2.18, 0), V(0.745598, 1.5, 0)), False)
sketch6.addGeometry(Part.LineSegment(V(0.745598, 1.5, 0), V(0.353, 1.5, 0)), False)
sketch6.addGeometry(Part.LineSegment(V(0.353, 1.5, 0), V(0.353, 2.18, 0)), False)
sketch6.addConstraint(Sketcher.Constraint("Coincident", 0, 2, 1, 1))
sketch6.addConstraint(Sketcher.Constraint("Coincident", 1, 2, 2, 1))
sketch6.addConstraint(Sketcher.Constraint("Coincident", 2, 2, 0, 1))
sketch6.addConstraint(Sketcher.Constraint("Horizontal", 1))
sketch6.addConstraint(Sketcher.Constraint("Vertical", 2))
sketch6.addConstraint(Sketcher.Constraint("Angle", 0, Q("-60 deg")))
sketch6.addConstraint(Sketcher.Constraint("DistanceY", 2, 1, 2, 2, Q("0.68 mm")))
sketch6.addConstraint(Sketcher.Constraint("DistanceY", -1, 1, 0, 2, Q("1.5 mm")))
sketch6.addConstraint(Sketcher.Constraint("DistanceX", -1, 1, 1, 2, Q("0.353 mm")))
revolution2 = body10.newObject("PartDesign::Revolution", "Revolution001")
revolution2.Profile = sketch6
revolution2.ReferenceAxis = (sketch6, ["V_Axis"])
revolution2.Angle = 360
doc.recompute()

body11 = doc.addObject("PartDesign::Body", "Body010")
body11.BaseFeature = body10
boolean7 = body.newObject("PartDesign::Boolean", "Boolean006")
boolean7.Type = "Cut"
boolean7.addObjects([body11])
doc.recompute()

body12 = doc.addObject("PartDesign::Body", "Body011")
body12.BaseFeature = body10
boolean8 = body2.newObject("PartDesign::Boolean", "Boolean007")
boolean8.Type = "Cut"
boolean8.addObjects([body12])
doc.recompute()

boolean9 = body3.newObject("PartDesign::Boolean", "Boolean008")
boolean9.Type = "Cut"
boolean9.addObjects([body10])

doc.recompute()
